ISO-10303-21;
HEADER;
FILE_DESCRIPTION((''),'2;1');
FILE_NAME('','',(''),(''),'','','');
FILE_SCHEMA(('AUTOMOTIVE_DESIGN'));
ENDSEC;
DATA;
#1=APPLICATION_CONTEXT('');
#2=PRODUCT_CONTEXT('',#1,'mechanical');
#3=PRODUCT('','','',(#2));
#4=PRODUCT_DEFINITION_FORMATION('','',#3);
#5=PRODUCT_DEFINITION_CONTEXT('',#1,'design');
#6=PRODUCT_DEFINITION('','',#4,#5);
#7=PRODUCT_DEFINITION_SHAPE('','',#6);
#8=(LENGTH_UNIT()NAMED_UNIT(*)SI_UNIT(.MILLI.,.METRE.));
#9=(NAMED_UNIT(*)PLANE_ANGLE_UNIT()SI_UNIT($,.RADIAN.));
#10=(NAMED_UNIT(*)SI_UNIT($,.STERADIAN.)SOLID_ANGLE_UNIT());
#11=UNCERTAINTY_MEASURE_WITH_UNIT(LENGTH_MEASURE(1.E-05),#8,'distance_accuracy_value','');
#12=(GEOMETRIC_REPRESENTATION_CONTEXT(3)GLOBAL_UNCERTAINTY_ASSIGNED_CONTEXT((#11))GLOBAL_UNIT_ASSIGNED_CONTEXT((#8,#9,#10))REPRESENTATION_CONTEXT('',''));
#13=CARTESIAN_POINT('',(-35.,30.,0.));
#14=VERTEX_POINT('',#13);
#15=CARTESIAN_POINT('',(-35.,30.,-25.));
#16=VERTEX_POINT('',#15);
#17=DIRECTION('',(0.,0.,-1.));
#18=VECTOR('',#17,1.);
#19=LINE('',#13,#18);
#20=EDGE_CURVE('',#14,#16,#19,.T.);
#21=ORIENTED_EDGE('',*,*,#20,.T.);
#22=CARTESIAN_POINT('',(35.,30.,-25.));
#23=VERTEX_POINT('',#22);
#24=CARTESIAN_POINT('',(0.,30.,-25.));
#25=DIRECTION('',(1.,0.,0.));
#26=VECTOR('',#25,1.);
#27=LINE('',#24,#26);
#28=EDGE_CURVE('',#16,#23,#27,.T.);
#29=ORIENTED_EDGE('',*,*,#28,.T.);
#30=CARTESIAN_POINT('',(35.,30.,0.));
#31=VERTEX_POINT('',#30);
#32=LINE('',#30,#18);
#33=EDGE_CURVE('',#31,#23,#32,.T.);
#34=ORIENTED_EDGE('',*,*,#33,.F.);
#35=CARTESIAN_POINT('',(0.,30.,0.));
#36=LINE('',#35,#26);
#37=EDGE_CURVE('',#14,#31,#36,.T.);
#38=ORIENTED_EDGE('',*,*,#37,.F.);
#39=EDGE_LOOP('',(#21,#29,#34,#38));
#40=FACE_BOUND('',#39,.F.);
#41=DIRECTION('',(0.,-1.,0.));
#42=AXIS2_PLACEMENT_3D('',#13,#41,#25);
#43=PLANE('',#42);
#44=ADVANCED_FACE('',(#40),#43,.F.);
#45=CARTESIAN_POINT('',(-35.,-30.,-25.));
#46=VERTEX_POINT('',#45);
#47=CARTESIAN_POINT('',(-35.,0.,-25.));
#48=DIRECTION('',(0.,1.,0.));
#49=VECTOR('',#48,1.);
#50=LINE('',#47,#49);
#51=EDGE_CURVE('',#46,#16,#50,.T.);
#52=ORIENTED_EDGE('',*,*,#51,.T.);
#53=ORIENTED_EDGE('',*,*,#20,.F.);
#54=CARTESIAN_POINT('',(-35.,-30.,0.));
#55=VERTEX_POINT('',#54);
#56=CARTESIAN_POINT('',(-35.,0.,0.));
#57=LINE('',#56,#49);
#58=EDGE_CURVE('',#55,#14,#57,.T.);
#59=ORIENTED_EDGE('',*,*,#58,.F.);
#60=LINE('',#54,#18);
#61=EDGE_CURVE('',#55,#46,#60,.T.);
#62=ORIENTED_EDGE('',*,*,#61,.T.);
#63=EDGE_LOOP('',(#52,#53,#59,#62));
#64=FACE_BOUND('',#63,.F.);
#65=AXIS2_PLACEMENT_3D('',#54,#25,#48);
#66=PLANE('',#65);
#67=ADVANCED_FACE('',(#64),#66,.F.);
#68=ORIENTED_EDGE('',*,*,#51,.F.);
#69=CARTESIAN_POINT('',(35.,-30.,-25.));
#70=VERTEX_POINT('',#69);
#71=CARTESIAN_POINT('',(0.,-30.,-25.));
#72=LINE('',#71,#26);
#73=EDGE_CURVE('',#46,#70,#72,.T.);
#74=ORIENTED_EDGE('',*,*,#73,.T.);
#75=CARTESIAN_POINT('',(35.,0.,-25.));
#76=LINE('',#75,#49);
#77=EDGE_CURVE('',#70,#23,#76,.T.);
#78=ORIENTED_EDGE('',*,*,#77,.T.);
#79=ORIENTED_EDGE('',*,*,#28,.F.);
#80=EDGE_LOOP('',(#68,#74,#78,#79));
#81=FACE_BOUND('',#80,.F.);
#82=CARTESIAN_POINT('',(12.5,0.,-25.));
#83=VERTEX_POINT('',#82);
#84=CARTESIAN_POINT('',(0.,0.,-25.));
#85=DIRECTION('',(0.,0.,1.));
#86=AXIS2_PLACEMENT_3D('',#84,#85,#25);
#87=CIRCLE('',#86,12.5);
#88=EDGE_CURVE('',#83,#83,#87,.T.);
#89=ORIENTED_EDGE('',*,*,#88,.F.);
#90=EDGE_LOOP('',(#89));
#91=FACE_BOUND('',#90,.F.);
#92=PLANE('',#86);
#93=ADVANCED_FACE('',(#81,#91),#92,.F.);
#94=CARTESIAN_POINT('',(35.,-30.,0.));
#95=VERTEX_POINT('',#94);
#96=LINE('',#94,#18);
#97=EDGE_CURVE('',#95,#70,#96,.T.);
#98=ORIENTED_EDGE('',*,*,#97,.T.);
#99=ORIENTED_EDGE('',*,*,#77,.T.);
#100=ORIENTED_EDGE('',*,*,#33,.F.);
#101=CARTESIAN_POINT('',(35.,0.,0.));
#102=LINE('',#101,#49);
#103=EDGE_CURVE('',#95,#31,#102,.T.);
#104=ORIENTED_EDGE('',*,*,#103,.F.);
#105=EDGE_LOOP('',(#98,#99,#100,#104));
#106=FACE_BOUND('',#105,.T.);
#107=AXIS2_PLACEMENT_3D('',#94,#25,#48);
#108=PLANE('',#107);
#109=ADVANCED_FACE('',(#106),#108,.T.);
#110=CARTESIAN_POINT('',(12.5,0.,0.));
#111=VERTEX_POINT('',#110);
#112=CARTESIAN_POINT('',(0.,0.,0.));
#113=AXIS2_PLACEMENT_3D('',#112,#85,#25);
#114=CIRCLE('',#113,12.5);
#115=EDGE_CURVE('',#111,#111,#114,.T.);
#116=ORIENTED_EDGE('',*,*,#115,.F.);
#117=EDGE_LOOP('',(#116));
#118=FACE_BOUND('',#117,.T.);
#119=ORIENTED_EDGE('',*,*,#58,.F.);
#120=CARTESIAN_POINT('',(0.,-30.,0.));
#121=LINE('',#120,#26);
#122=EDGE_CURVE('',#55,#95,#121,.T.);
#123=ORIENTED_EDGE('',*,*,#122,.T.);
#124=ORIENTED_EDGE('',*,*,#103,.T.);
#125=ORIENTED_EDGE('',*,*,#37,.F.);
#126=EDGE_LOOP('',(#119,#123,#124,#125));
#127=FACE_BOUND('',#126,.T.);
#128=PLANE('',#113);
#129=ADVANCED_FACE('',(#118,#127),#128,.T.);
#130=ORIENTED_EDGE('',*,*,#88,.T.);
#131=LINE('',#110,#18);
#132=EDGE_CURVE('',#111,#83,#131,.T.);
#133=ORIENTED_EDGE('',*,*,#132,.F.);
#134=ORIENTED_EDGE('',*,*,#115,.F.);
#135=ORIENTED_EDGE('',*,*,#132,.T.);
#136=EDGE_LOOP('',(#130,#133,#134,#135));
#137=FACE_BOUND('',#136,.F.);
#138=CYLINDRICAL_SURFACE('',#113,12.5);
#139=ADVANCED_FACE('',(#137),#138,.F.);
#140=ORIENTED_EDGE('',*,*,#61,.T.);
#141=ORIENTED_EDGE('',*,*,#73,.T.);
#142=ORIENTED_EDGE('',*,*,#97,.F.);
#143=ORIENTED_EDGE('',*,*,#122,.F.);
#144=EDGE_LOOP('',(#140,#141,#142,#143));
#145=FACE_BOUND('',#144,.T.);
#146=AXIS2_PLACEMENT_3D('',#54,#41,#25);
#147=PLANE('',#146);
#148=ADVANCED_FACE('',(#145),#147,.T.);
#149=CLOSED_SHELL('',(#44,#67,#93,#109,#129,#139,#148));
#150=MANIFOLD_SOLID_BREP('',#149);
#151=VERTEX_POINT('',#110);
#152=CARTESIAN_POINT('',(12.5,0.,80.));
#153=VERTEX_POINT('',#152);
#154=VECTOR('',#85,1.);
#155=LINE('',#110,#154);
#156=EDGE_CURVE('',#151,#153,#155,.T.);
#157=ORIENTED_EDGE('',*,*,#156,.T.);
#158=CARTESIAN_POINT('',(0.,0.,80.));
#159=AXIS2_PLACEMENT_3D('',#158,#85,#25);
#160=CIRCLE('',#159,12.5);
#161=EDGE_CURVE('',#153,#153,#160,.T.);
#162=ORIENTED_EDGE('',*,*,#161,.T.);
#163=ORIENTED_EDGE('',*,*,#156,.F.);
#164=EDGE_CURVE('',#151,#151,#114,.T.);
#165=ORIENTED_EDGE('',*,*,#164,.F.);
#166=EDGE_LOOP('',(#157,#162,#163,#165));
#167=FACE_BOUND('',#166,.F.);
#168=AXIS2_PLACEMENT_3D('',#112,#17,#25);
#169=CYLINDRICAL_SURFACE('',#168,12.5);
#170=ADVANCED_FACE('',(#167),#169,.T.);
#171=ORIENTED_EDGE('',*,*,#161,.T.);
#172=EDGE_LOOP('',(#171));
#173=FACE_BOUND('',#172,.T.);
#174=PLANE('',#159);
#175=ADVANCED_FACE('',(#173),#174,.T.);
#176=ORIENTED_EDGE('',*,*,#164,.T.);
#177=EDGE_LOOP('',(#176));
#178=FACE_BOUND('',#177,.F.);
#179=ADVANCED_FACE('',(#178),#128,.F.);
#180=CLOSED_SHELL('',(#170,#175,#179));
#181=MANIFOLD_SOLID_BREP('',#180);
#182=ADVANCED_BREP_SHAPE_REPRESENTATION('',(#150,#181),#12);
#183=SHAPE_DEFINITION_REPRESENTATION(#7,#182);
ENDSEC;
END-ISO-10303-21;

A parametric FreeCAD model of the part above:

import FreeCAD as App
import Part
import Sketcher


def add_polygon(sketch, points):
    """Adds a closed chain of lines whose ends are joined by coincident constraints."""
    first, n = sketch.GeometryCount, len(points)
    for a, b in zip(points, points[1:] + points[:1]):
        sketch.addGeometry(Part.LineSegment(App.Vector(*a, 0), App.Vector(*b, 0)), False)
    for i in range(n):
        sketch.addConstraint(Sketcher.Constraint("Coincident", first + i, 2, first + (i + 1) % n, 1))

doc = App.newDocument("Part")
body = doc.addObject("PartDesign::Body", "Body")

sketch1 = doc.addObject("Sketcher::SketchObject", "Sketch")
body.addObject(sketch1)
sketch1.AttachmentSupport = (doc.XY_Plane, [""])
sketch1.MapMode = "FlatFace"
add_polygon(sketch1, [(-35, 30), (-35, -30), (35, -30), (35, 30)])
sketch1.addGeometry(Part.Circle(App.Vector(0, 0, 0), App.Vector(0, 0, 1), 12.5), False)
sketch1.addConstraint(Sketcher.Constraint("Vertical", 0))
sketch1.addConstraint(Sketcher.Constraint("Horizontal", 1))
sketch1.addConstraint(Sketcher.Constraint("Vertical", 2))
sketch1.addConstraint(Sketcher.Constraint("Horizontal", 3))
sketch1.addConstraint(Sketcher.Constraint("Coincident", 4, 3, -1, 1))
sketch1.addConstraint(Sketcher.Constraint("Symmetric", 0, 2, 2, 2, -1, 1))
sketch1.addConstraint(Sketcher.Constraint("Diameter", 4, 25.0))
sketch1.addConstraint(Sketcher.Constraint("DistanceX", 1, 1, 1, 2, 70.0))
sketch1.addConstraint(Sketcher.Constraint("DistanceY", 0, 2, 0, 1, 60.0))
pad1 = doc.addObject("PartDesign::Pad", "Pad")
body.addObject(pad1)
pad1.Profile = sketch1
pad1.Length = 25
pad1.Reversed = True
body2 = doc.addObject("PartDesign::Body", "Body001")

sketch2 = doc.addObject("Sketcher::SketchObject", "Sketch001")
body2.addObject(sketch2)
sketch2.AttachmentSupport = (doc.getObject("XY_Plane001"), [""])
sketch2.MapMode = "FlatFace"
sketch2.addGeometry(Part.Circle(App.Vector(0, 0, 0), App.Vector(0, 0, 1), 12.5), False)
sketch2.addConstraint(Sketcher.Constraint("Coincident", 0, 3, -1, 1))
sketch2.addConstraint(Sketcher.Constraint("Diameter", 0, 25.0))
pad2 = doc.addObject("PartDesign::Pad", "Pad001")
body2.addObject(pad2)
pad2.Profile = sketch2
pad2.Length = 80

doc.recompute()
